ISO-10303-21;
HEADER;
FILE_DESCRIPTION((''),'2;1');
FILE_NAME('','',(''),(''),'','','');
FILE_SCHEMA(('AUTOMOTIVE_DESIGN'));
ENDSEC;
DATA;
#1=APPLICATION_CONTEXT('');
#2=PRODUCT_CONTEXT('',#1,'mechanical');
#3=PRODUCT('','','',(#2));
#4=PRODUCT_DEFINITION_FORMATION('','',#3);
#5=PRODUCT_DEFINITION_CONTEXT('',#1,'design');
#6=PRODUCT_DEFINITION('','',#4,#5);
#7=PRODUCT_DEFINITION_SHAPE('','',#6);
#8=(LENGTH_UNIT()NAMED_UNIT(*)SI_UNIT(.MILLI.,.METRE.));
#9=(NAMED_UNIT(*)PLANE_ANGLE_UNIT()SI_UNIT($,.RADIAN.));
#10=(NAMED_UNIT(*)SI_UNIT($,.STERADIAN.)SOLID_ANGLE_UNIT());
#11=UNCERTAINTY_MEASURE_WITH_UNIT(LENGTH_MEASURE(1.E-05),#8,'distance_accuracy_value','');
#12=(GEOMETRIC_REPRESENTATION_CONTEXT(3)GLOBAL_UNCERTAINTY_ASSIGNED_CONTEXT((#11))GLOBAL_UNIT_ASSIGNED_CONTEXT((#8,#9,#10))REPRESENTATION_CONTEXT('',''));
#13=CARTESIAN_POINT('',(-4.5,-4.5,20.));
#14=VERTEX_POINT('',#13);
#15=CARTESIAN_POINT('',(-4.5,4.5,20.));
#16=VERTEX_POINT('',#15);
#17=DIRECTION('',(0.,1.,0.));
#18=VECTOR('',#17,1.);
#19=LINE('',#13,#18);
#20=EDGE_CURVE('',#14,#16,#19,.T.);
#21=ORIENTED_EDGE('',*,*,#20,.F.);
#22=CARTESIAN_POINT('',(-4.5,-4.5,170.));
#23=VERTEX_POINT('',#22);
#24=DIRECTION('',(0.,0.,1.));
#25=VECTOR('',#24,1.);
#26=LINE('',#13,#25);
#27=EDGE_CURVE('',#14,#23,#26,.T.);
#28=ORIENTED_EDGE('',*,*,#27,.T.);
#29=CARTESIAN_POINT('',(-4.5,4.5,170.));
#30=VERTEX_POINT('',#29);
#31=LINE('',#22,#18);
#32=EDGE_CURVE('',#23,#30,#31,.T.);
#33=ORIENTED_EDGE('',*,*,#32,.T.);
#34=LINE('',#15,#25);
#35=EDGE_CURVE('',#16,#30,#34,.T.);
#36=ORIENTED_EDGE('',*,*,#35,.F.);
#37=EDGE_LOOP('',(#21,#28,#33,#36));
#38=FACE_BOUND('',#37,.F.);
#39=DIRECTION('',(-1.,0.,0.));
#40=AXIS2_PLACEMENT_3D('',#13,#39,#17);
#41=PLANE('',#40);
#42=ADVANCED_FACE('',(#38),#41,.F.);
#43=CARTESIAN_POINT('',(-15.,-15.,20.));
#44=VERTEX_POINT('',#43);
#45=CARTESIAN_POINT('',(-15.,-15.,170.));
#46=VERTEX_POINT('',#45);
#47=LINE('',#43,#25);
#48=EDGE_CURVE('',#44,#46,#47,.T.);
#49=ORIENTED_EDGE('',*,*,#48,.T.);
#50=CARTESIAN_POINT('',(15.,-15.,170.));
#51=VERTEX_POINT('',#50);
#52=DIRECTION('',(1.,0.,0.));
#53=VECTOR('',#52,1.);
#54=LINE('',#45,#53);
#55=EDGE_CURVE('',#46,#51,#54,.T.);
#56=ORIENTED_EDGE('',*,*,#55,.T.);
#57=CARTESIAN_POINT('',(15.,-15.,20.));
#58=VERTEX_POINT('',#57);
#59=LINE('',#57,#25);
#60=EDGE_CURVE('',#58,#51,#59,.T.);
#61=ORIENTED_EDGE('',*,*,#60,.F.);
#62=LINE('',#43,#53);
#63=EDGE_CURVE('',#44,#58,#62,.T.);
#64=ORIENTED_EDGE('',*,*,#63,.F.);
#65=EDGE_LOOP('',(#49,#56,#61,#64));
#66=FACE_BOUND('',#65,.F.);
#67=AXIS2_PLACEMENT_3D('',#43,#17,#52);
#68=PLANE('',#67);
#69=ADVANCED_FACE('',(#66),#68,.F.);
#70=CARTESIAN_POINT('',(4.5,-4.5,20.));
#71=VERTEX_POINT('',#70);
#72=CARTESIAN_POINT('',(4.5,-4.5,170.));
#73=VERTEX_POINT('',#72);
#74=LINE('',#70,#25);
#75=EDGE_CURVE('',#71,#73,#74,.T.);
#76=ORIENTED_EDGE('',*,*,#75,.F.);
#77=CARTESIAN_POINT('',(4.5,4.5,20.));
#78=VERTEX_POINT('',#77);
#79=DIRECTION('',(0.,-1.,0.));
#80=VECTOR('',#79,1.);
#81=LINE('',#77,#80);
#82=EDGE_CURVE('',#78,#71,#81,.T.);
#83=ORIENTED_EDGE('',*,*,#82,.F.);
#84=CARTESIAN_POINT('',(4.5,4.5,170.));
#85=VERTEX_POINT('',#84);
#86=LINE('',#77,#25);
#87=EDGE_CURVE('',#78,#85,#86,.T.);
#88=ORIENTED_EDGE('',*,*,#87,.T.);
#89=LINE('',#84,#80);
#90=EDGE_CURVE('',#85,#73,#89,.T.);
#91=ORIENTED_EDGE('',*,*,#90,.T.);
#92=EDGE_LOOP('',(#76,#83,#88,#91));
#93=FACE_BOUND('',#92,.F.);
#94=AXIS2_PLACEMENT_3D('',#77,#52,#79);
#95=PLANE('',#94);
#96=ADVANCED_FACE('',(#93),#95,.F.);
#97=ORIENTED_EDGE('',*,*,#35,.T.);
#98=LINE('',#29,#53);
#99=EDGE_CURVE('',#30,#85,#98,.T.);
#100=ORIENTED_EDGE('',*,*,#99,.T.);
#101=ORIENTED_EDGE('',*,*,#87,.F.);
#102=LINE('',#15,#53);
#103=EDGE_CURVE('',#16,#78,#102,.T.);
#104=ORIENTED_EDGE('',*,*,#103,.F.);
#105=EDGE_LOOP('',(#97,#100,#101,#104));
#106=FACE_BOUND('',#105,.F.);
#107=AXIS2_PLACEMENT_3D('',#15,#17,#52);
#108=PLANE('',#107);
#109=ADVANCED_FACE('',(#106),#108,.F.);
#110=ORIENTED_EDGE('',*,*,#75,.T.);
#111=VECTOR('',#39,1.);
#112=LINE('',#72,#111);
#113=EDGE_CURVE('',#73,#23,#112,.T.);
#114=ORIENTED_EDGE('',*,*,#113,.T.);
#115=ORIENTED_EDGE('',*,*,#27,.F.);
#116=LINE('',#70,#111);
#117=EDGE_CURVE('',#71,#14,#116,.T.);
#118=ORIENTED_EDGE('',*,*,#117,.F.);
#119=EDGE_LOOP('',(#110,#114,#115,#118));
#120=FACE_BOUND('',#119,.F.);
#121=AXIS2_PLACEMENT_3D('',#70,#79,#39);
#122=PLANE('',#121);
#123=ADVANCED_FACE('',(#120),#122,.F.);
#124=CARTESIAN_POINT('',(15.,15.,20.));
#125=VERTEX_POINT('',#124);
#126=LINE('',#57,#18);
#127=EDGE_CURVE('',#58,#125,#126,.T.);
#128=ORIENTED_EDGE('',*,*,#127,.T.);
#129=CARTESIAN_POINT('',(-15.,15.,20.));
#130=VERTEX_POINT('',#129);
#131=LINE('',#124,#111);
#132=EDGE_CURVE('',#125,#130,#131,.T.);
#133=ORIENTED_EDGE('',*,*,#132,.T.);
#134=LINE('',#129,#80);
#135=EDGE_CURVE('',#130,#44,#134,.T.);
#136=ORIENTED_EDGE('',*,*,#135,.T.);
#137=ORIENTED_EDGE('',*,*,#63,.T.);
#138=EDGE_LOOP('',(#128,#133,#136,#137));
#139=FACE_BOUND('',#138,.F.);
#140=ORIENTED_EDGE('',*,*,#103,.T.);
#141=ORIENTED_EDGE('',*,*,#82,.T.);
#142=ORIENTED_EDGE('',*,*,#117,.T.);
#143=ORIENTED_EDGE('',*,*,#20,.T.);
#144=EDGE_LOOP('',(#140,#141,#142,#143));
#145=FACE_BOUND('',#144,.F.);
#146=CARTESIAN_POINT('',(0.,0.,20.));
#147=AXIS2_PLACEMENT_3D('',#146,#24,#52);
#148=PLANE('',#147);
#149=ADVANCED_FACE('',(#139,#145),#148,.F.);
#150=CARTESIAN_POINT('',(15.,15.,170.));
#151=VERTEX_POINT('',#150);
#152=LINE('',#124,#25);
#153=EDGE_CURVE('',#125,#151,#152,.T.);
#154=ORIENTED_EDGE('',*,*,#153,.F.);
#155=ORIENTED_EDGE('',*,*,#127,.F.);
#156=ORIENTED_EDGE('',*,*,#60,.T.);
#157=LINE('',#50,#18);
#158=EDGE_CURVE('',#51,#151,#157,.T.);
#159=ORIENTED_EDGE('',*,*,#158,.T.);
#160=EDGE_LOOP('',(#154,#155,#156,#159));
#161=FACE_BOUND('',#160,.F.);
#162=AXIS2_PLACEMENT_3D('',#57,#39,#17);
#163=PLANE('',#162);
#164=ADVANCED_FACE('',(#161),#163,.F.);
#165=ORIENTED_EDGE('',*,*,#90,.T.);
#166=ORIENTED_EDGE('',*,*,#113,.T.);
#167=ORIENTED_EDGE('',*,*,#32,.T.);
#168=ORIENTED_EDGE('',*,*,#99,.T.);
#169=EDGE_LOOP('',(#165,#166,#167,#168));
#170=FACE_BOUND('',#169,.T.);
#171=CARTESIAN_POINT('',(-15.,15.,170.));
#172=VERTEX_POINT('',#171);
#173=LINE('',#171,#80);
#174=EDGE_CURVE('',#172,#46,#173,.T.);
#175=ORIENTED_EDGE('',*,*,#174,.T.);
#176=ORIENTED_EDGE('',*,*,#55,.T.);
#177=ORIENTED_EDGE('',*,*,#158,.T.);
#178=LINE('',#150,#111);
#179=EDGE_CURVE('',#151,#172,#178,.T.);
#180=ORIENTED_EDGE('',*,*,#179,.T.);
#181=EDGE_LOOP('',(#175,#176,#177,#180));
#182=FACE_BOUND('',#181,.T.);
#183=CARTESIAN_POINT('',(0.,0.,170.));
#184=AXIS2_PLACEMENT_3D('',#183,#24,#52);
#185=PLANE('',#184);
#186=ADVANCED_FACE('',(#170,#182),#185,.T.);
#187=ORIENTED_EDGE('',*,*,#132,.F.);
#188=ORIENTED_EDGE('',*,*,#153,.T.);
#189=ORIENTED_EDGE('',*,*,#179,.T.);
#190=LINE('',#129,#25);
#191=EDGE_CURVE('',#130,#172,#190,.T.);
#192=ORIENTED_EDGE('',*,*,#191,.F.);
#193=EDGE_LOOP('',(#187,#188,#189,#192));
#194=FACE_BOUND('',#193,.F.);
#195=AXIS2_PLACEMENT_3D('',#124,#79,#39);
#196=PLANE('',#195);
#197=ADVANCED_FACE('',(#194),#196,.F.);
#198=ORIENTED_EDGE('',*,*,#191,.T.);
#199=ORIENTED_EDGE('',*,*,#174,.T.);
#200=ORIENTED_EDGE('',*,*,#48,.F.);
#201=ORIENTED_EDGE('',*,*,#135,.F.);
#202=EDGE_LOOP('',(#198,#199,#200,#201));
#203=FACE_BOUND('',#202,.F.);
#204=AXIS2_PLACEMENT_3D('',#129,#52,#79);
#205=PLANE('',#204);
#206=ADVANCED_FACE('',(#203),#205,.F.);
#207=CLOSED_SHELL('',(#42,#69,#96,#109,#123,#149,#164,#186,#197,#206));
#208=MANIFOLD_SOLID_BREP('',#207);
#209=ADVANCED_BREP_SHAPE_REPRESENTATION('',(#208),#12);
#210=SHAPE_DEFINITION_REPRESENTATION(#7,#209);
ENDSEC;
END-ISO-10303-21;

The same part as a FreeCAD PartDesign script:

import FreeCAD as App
import Part
import Sketcher

V = App.Vector

doc = App.newDocument("Part")
body = doc.addObject("PartDesign::Body", "Body")

sketch1 = body.newObject("Sketcher::SketchObject", "Sketch")
sketch1.AttachmentSupport = (doc.getObject("XY_Plane"), [""])
sketch1.MapMode = "FlatFace"
sketch1.AttachmentOffset = App.Placement(V(0, 0, 20), App.Rotation())
sketch1.addGeometry([
    Part.LineSegment(V(15, -15, 0), V(15, 15, 0)),
    Part.LineSegment(V(15, 15, 0), V(-15, 15, 0)),
    Part.LineSegment(V(-15, 15, 0), V(-15, -15, 0)),
    Part.LineSegment(V(-15, -15, 0), V(15, -15, 0)),
    Part.LineSegment(V(4, 4, 0), V(4, -4, 0)),
    Part.LineSegment(V(4, -4, 0), V(-4, -4, 0)),
    Part.LineSegment(V(-4, -4, 0), V(-4, 4, 0)),
    Part.LineSegment(V(-4, 4, 0), V(4, 4, 0)),
], False)
sketch1.addConstraint([
    Sketcher.Constraint("Coincident", 0, 2, 1, 1),
    Sketcher.Constraint("Coincident", 1, 2, 2, 1),
    Sketcher.Constraint("Coincident", 2, 2, 3, 1),
    Sketcher.Constraint("Coincident", 3, 2, 0, 1),
    Sketcher.Constraint("Coincident", 4, 2, 5, 1),
    Sketcher.Constraint("Coincident", 5, 2, 6, 1),
    Sketcher.Constraint("Coincident", 6, 2, 7, 1),
    Sketcher.Constraint("Coincident", 7, 2, 4, 1),
    Sketcher.Constraint("Vertical", 0),
    Sketcher.Constraint("Horizontal", 1),
    Sketcher.Constraint("Vertical", 2),
    Sketcher.Constraint("Horizontal", 3),
    Sketcher.Constraint("Vertical", 4),
    Sketcher.Constraint("Horizontal", 5),
    Sketcher.Constraint("Vertical", 6),
    Sketcher.Constraint("Horizontal", 7),
    Sketcher.Constraint("Symmetric", 0, 2, 2, 2, -1, 1),
    Sketcher.Constraint("Symmetric", 4, 2, 6, 2, -1, 1),
    Sketcher.Constraint("Equal", 3, 0),
    Sketcher.Constraint("Equal", 7, 4),
    Sketcher.Constraint("DistanceX", 1, 2, 1, 1, 30.0),
    Sketcher.Constraint("DistanceX", 5, 2, 5, 1, 9.0),
])
pad1 = body.newObject("PartDesign::Pad", "Pad")
pad1.Profile = sketch1
pad1.Length = 150

doc.recompute()
